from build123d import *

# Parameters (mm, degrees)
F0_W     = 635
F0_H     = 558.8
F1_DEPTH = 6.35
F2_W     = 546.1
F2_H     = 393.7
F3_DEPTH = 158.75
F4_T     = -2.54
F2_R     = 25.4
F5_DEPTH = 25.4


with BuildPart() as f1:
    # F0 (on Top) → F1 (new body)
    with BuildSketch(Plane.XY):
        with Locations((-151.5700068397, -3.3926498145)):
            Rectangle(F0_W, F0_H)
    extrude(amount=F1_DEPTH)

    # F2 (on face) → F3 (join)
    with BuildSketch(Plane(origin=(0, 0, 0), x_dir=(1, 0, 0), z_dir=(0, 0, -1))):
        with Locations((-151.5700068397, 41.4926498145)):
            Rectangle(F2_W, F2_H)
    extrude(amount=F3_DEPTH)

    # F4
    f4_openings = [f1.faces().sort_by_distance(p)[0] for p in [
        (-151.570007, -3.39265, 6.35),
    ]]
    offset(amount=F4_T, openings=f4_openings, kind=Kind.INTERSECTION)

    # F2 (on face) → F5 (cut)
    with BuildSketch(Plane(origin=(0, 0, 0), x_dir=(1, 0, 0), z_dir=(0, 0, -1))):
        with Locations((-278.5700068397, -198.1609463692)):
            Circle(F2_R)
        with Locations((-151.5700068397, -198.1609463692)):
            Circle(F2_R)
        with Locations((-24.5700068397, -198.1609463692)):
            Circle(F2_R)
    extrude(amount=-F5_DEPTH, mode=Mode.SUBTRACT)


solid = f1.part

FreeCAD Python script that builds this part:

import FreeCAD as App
import Part
import Sketcher
Q = App.Units.Quantity


def faces_at(feature, points):
    """Names of the faces that lie closest to the given points."""
    faces = feature.Shape.Faces
    near = lambda p: min(range(len(faces)), key=lambda i: faces[i].distToShape(Part.Vertex(*p))[0])
    return sorted({f"Face{near(p) + 1}" for p in points})


def add_polygon(sketch, points):
    """Adds a closed chain of lines whose ends are joined by coincident constraints."""
    first, n = sketch.GeometryCount, len(points)
    for a, b in zip(points, points[1:] + points[:1]):
        sketch.addGeometry(Part.LineSegment(App.Vector(*a, 0), App.Vector(*b, 0)), False)
    for i in range(n):
        sketch.addConstraint(Sketcher.Constraint("Coincident", first + i, 2, first + (i + 1) % n, 1))

doc = App.newDocument("Part")
body = doc.addObject("PartDesign::Body", "Body")

# Sketch on XY plane
sketch1 = body.newObject("Sketcher::SketchObject", "Sketch")
sketch1.AttachmentSupport = (doc.getObject("XY_Plane"), [""])
sketch1.MapMode = "FlatFace"
add_polygon(sketch1, [(-469, 276), (-469, -283), (166, -283), (166, 276)])  # lines 0-3
sketch1.addConstraint([
    Sketcher.Constraint("Vertical", 0),
    Sketcher.Constraint("Horizontal", 1),
    Sketcher.Constraint("Vertical", 2),
    Sketcher.Constraint("Horizontal", 3),
    Sketcher.Constraint("DistanceX", 1, 1, 1, 2, Q("25 in")),
    Sketcher.Constraint("DistanceY", 0, 2, 0, 1, Q("22 in")),
    Sketcher.Constraint("DistanceY", 0, 2, -1, 1, Q("282.79265 mm")),
    Sketcher.Constraint("DistanceX", 0, 2, -1, 1, Q("469.070007 mm")),
])
pad1 = body.newObject("PartDesign::Pad", "Pad")
pad1.Profile = sketch1
pad1.Length = Q("0.25 in")

# Sketch on XY plane
sketch2 = body.newObject("Sketcher::SketchObject", "Sketch001")
sketch2.AttachmentSupport = (doc.getObject("XY_Plane"), [""])
sketch2.MapMode = "FlatFace"
add_polygon(sketch2, [(-425, -238), (-425, 155), (121, 155), (121, -238)])  # lines 0-3
sketch2.addConstraint([
    Sketcher.Constraint("Vertical", 0),
    Sketcher.Constraint("Horizontal", 1),
    Sketcher.Constraint("Vertical", 2),
    Sketcher.Constraint("Horizontal", 3),
    Sketcher.Constraint("DistanceX", 1, 1, 1, 2, Q("21.5 in")),
    Sketcher.Constraint("DistanceY", 0, 1, 0, 2, Q("15.5 in")),
    Sketcher.Constraint("DistanceY", -1, 1, 0, 2, Q("155.35735 mm")),
    Sketcher.Constraint("DistanceX", 0, 2, -1, 1, Q("424.620007 mm")),
])
pad2 = body.newObject("PartDesign::Pad", "Pad001")
pad2.Profile = sketch2
pad2.Length = Q("6.25 in")
pad2.Reversed = True
doc.recompute()

thickness = body.newObject("PartDesign::Thickness", "Thickness")
thickness.Base = (pad2, faces_at(pad2, [(-151.57, -3.393, 6.35)]))
thickness.Value = Q("0.1 in")
thickness.Reversed = True
thickness.Join = "Intersection"

# Sketch on XY plane
sketch3 = body.newObject("Sketcher::SketchObject", "Sketch002")
sketch3.AttachmentSupport = (doc.getObject("XY_Plane"), [""])
sketch3.MapMode = "FlatFace"
sketch3.addGeometry([
    Part.Circle(App.Vector(-279, 198, 0), App.Vector(0, 0, 1), 25),
    Part.Circle(App.Vector(-152, 198, 0), App.Vector(0, 0, 1), 25),
    Part.Circle(App.Vector(-25, 198, 0), App.Vector(0, 0, 1), 25),
], False)
sketch3.addConstraint([
    Sketcher.Constraint("Equal", 0, 1),
    Sketcher.Constraint("Equal", 1, 2),
    Sketcher.Constraint("Horizontal", 0, 3, 1, 3),
    Sketcher.Constraint("Horizontal", 1, 3, 2, 3),
    Sketcher.Constraint("Diameter", 0, Q("2 in")),
    Sketcher.Constraint("DistanceX", 0, 3, 1, 3, Q("5 in")),
    Sketcher.Constraint("DistanceX", 1, 3, 2, 3, Q("5 in")),
    Sketcher.Constraint("DistanceX", 0, 3, -1, 1, Q("278.570007 mm")),
    Sketcher.Constraint("DistanceY", -1, 1, 0, 3, Q("198.160946 mm")),
])
pocket1 = body.newObject("PartDesign::Pocket", "Pocket")
pocket1.Profile = sketch3
pocket1.Length = Q("1 in")
pocket1.Reversed = True

doc.recompute()
